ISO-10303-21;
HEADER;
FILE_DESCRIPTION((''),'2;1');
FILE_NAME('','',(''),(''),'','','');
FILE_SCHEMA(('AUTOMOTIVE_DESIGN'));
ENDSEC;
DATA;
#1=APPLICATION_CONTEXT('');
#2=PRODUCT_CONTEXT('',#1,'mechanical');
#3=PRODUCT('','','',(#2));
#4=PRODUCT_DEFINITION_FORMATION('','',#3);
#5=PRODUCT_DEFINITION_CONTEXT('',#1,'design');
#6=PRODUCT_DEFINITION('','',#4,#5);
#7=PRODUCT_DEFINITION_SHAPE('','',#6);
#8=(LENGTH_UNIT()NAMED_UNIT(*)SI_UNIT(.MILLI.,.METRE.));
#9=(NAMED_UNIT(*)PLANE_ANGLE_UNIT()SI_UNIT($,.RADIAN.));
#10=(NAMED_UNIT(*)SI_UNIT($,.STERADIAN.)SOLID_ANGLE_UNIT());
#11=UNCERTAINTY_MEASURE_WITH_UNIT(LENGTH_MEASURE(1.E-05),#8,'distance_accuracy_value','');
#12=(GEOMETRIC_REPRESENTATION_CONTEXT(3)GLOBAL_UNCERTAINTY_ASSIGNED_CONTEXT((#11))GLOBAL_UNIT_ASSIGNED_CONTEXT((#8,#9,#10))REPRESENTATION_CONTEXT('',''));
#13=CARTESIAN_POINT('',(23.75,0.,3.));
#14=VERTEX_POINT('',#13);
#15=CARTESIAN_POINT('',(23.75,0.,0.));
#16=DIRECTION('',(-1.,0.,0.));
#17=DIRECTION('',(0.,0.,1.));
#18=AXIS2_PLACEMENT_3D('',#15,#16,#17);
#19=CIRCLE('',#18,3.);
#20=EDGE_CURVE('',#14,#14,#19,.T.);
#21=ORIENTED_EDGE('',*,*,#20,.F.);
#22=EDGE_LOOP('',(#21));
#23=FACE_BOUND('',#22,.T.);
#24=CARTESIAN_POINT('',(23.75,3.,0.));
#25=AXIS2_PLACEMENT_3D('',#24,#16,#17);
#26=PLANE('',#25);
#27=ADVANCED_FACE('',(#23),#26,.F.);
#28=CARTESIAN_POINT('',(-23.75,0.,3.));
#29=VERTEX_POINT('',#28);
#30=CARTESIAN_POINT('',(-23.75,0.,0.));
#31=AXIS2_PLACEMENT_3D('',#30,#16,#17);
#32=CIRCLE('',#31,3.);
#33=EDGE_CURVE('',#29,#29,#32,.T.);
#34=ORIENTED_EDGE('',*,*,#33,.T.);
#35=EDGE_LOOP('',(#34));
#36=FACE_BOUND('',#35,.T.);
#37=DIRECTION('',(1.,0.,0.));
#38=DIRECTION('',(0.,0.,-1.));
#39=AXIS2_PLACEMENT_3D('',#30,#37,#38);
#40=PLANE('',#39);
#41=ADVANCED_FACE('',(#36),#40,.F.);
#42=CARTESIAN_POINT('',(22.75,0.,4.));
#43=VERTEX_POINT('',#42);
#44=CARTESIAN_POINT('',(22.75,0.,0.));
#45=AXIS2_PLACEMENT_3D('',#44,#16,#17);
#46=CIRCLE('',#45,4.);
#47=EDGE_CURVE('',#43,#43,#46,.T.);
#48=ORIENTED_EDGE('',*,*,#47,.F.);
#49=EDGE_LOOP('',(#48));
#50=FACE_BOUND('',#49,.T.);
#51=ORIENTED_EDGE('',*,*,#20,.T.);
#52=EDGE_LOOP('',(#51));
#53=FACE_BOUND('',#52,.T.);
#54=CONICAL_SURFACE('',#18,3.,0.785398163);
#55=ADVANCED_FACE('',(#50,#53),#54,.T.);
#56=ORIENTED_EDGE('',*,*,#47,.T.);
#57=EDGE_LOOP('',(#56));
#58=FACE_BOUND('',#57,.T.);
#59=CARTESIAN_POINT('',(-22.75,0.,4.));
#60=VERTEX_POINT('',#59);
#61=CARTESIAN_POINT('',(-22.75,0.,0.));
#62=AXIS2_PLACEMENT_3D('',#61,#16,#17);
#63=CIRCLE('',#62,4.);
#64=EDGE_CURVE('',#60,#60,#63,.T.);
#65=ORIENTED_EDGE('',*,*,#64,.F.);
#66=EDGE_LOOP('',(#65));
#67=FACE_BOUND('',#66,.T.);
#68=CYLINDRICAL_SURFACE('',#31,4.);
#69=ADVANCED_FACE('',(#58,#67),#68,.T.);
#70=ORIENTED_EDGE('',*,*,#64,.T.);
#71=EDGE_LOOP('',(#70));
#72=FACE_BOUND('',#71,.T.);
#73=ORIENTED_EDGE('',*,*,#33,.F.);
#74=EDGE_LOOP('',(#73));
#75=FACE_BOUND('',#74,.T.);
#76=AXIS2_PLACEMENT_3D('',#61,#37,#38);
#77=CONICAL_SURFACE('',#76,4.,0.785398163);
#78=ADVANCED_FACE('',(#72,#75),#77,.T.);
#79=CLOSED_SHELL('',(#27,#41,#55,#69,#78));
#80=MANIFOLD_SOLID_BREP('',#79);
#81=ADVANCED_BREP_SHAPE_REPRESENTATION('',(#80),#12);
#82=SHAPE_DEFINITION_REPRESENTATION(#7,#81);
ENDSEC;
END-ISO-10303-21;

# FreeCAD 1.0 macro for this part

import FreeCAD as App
import Part
import Sketcher


def add_polygon(sketch, points):
    """Adds a closed chain of lines whose ends are joined by coincident constraints."""
    first, n = sketch.GeometryCount, len(points)
    for a, b in zip(points, points[1:] + points[:1]):
        sketch.addGeometry(Part.LineSegment(App.Vector(*a, 0), App.Vector(*b, 0)), False)
    for i in range(n):
        sketch.addConstraint(Sketcher.Constraint("Coincident", first + i, 2, first + (i + 1) % n, 1))

doc = App.newDocument("Part")
body = doc.addObject("PartDesign::Body", "Body")

# Sketch on XY plane
sketch1 = body.newObject("Sketcher::SketchObject", "Sketch")
sketch1.AttachmentSupport = (doc.getObject("XY_Plane"), [""])
sketch1.MapMode = "FlatFace"
add_polygon(sketch1, [(-23.75, 3), (-23.75, 0), (23.75, 0), (23.75, 3), (22.75, 4), (-22.75, 4)])  # lines 0-5
sketch1.addConstraint([
    Sketcher.Constraint("Vertical", 0),
    Sketcher.Constraint("Horizontal", 1),
    Sketcher.Constraint("Vertical", 2),
    Sketcher.Constraint("Horizontal", 4),
    Sketcher.Constraint("Symmetric", 0, 2, 1, 2, -1, 1),
    Sketcher.Constraint("Perpendicular", 3, 5),
    Sketcher.Constraint("Horizontal", 2, 2, 5, 2),
    Sketcher.Constraint("Equal", 3, 5),
    Sketcher.Constraint("DistanceY", 0, 2, 0, 1, 3.0),
    Sketcher.Constraint("DistanceX", 1, 1, 1, 2, 47.5),
    Sketcher.Constraint("DistanceX", 4, 2, 4, 1, 45.5),
])
revolution = body.newObject("PartDesign::Revolution", "Revolution")
revolution.Profile = sketch1
revolution.ReferenceAxis = (sketch1, ["H_Axis"])
revolution.Angle = 360

doc.recompute()
